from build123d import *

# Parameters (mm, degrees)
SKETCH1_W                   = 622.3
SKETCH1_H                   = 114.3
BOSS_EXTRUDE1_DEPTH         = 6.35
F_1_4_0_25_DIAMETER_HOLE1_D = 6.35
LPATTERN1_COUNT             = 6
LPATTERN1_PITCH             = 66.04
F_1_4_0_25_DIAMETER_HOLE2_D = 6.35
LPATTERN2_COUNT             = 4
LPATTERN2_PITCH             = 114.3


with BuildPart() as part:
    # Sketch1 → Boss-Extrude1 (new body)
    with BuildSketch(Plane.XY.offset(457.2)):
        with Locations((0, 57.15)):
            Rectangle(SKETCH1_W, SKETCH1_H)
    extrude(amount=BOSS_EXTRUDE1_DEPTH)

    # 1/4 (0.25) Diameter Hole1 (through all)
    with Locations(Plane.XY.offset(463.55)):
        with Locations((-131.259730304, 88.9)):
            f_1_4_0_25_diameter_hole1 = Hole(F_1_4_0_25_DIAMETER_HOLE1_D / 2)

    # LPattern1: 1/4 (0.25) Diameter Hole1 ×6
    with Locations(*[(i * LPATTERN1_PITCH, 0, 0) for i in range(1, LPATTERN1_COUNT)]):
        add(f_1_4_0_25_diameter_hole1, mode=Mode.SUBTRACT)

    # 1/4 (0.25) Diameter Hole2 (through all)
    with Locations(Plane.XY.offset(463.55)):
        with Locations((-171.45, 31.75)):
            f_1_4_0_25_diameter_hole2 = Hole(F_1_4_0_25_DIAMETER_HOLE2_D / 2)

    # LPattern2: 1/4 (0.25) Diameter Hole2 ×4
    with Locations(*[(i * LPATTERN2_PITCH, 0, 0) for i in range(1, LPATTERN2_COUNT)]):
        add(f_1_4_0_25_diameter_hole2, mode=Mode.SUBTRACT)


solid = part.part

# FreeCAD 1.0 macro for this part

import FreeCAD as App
import Part
import Sketcher
Q = App.Units.Quantity

doc = App.newDocument("Part")
body = doc.addObject("PartDesign::Body", "Body")

sketch1 = body.newObject("Sketcher::SketchObject", "Sketch")
sketch1.AttachmentSupport = (doc.getObject("XY_Plane"), [""])
sketch1.MapMode = "FlatFace"
sketch1.AttachmentOffset = App.Placement(App.Vector(0, 0, 18 * 25.4), App.Rotation())
sketch1.addGeometry([
    Part.LineSegment(App.Vector(-311, 114, 0), App.Vector(-311, 0, 0)),
    Part.LineSegment(App.Vector(-311, 0, 0), App.Vector(311, 0, 0)),
    Part.LineSegment(App.Vector(311, 0, 0), App.Vector(311, 114, 0)),
    Part.LineSegment(App.Vector(311, 114, 0), App.Vector(-311, 114, 0)),
], False)
sketch1.addConstraint([
    Sketcher.Constraint("Coincident", 0, 2, 1, 1),
    Sketcher.Constraint("Coincident", 1, 2, 2, 1),
    Sketcher.Constraint("Coincident", 2, 2, 3, 1),
    Sketcher.Constraint("Coincident", 3, 2, 0, 1),
    Sketcher.Constraint("Vertical", 0),
    Sketcher.Constraint("Horizontal", 1),
    Sketcher.Constraint("Vertical", 2),
    Sketcher.Constraint("Horizontal", 3),
    Sketcher.Constraint("Symmetric", 0, 2, 1, 2, -1, 1),
    Sketcher.Constraint("DistanceX", 1, 1, 1, 2, Q("24.5 in")),
    Sketcher.Constraint("DistanceY", 0, 2, 0, 1, Q("4.5 in")),
])
pad1 = body.newObject("PartDesign::Pad", "Pad")
pad1.Profile = sketch1
pad1.Length = Q("0.25 in")

sketch2 = body.newObject("Sketcher::SketchObject", "Sketch001")
sketch2.AttachmentSupport = (doc.getObject("XY_Plane"), [""])
sketch2.MapMode = "FlatFace"
sketch2.AttachmentOffset = App.Placement(App.Vector(0, 0, 18.25 * 25.4), App.Rotation())
sketch2.addGeometry(Part.Circle(App.Vector(-131.3, 88.9, 0), App.Vector(0, 0, 1), 3.2), False)
sketch2.addConstraint([
    Sketcher.Constraint("Diameter", 0, Q("0.25 in")),
    Sketcher.Constraint("DistanceY", -1, 1, 0, 3, Q("3.5 in")),
    Sketcher.Constraint("DistanceX", 0, 3, -1, 1, Q("131.25973 mm")),
])
doc.recompute()
hole = body.newObject("PartDesign::Hole", "Hole")
hole.Profile = sketch2
hole.ThreadType = "None"
hole.Diameter = Q("0.25 in")
hole.DepthType = "ThroughAll"
doc.recompute()

linearpattern = body.newObject("PartDesign::LinearPattern", "LinearPattern")
linearpattern.Originals = [hole]
linearpattern.Direction = (doc.getObject("X_Axis"), [""])
linearpattern.Mode = "offset"
linearpattern.Offset = Q("2.6 in")
linearpattern.Occurrences = 6
body.Tip = linearpattern

sketch3 = body.newObject("Sketcher::SketchObject", "Sketch002")
sketch3.AttachmentSupport = (doc.getObject("XY_Plane"), [""])
sketch3.MapMode = "FlatFace"
sketch3.AttachmentOffset = App.Placement(App.Vector(0, 0, 18.25 * 25.4), App.Rotation())
sketch3.addGeometry(Part.Circle(App.Vector(-171.4, 31.8, 0), App.Vector(0, 0, 1), 3.2), False)
sketch3.addConstraint([
    Sketcher.Constraint("Diameter", 0, Q("0.25 in")),
    Sketcher.Constraint("DistanceX", 0, 3, -1, 1, Q("6.75 in")),
    Sketcher.Constraint("DistanceY", -1, 1, 0, 3, Q("1.25 in")),
])
doc.recompute()
hole2 = body.newObject("PartDesign::Hole", "Hole001")
hole2.Profile = sketch3
hole2.ThreadType = "None"
hole2.Diameter = Q("0.25 in")
hole2.DepthType = "ThroughAll"
doc.recompute()

linearpattern2 = body.newObject("PartDesign::LinearPattern", "LinearPattern001")
linearpattern2.Originals = [hole2]
linearpattern2.Direction = (doc.getObject("X_Axis"), [""])
linearpattern2.Mode = "offset"
linearpattern2.Offset = Q("4.5 in")
linearpattern2.Occurrences = 4
body.Tip = linearpattern2

doc.recompute()
